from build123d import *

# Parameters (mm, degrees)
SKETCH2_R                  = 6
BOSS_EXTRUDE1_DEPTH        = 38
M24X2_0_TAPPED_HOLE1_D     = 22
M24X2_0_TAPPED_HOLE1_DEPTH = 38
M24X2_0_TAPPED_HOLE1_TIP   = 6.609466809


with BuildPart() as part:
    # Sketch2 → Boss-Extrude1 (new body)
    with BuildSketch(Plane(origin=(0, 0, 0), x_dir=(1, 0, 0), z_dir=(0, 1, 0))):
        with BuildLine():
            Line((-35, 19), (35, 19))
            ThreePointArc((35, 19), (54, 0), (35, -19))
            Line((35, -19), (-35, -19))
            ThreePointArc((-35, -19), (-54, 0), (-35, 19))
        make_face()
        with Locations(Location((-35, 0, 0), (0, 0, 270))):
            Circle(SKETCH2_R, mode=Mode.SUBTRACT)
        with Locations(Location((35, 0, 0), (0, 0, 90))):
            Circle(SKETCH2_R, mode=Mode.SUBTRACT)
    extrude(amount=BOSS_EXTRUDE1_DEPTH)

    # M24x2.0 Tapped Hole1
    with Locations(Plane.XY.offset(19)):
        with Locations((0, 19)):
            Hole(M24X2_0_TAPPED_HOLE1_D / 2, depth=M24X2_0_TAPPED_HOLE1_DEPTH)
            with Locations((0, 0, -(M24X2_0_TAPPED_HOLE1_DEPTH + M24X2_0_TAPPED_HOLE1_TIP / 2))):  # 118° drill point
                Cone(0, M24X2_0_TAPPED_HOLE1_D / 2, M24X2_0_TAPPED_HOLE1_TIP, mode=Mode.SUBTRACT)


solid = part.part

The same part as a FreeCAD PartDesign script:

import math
import FreeCAD as App
import Part
import Sketcher

doc = App.newDocument("Part")
params = doc.addObject("Spreadsheet::Sheet", "Params")
for row, (alias, value) in enumerate([
    ("sketch1_diameter", "12 mm"),
    ("sketch1_radius", "19 mm"),
    ("sketch1_width", "70 mm"),
    ("pad1_length", "38 mm"),
    ("sketch2_diameter", "22 mm"),
    ("hole_diameter", "22 mm"),
    ("hole_depth", "38 mm"),
], start=1):
    params.set(f"A{row}", alias)
    params.set(f"B{row}", "=" + value)
    params.setAlias(f"B{row}", alias)

body = doc.addObject("PartDesign::Body", "Body")

sketch1 = body.newObject("Sketcher::SketchObject", "Sketch")
sketch1.AttachmentSupport = (doc.getObject("XZ_Plane"), [""])
sketch1.MapMode = "FlatFace"
sketch1.addGeometry(Part.LineSegment(App.Vector(35, -19, 0), App.Vector(-35, -19, 0)), False)
sketch1.addGeometry(Part.ArcOfCircle(Part.Circle(App.Vector(-35, 0, 0), App.Vector(0, 0, 1), 19), math.radians(90), math.radians(270)), False)
sketch1.addGeometry(Part.LineSegment(App.Vector(-35, 19, 0), App.Vector(35, 19, 0)), False)
sketch1.addGeometry(Part.ArcOfCircle(Part.Circle(App.Vector(35, 0, 0), App.Vector(0, 0, 1), 19), math.radians(-90), math.radians(90)), False)
sketch1.addGeometry(Part.Circle(App.Vector(35, 0, 0), App.Vector(0, 0, 1), 6), False)
sketch1.addGeometry(Part.Circle(App.Vector(-35, 0, 0), App.Vector(0, 0, 1), 6), False)
sketch1.addConstraint(Sketcher.Constraint("Tangent", 0, 2, 1, 2))
sketch1.addConstraint(Sketcher.Constraint("Tangent", 1, 1, 2, 1))
sketch1.addConstraint(Sketcher.Constraint("Tangent", 2, 2, 3, 2))
sketch1.addConstraint(Sketcher.Constraint("Tangent", 3, 1, 0, 1))
sketch1.addConstraint(Sketcher.Constraint("Horizontal", 0))
sketch1.addConstraint(Sketcher.Constraint("Horizontal", 2))
sketch1.addConstraint(Sketcher.Constraint("Coincident", 4, 3, 3, 3))
sketch1.addConstraint(Sketcher.Constraint("Coincident", 5, 3, 1, 3))
sketch1.addConstraint(Sketcher.Constraint("Equal", 4, 5))
sketch1.addConstraint(Sketcher.Constraint("Symmetric", 1, 3, 3, 3, -1, 1))
sketch1.addConstraint(Sketcher.Constraint("Diameter", 4, 12.0))
sketch1.addConstraint(Sketcher.Constraint("Radius", 1, 19.0))
sketch1.addConstraint(Sketcher.Constraint("DistanceX", 0, 2, 0, 1, 70.0))
sketch1.setExpression("Constraints[10]", "Params.sketch1_diameter")
sketch1.setExpression("Constraints[11]", "Params.sketch1_radius")
sketch1.setExpression("Constraints[12]", "Params.sketch1_width")
pad1 = body.newObject("PartDesign::Pad", "Pad")
pad1.Profile = sketch1
pad1.setExpression("Length", "Params.pad1_length")
pad1.Reversed = True

sketch2 = body.newObject("Sketcher::SketchObject", "Sketch001")
sketch2.AttachmentSupport = (doc.getObject("XY_Plane"), [""])
sketch2.MapMode = "FlatFace"
sketch2.AttachmentOffset = App.Placement(App.Vector(0, 0, 19), App.Rotation())
sketch2.addGeometry(Part.Circle(App.Vector(0, 19, 0), App.Vector(0, 0, 1), 11), False)
sketch2.addConstraint(Sketcher.Constraint("PointOnObject", 0, 3, -2))
sketch2.addConstraint(Sketcher.Constraint("Diameter", 0, 22.0))
sketch2.addConstraint(Sketcher.Constraint("DistanceY", -1, 1, 0, 3, 19.0))
sketch2.setExpression("Constraints[1]", "Params.sketch2_diameter")
doc.recompute()
hole = body.newObject("PartDesign::Hole", "Hole")
hole.Profile = sketch2
hole.ThreadType = "None"
hole.setExpression("Diameter", "Params.hole_diameter")
hole.DepthType = "Dimension"
hole.setExpression("Depth", "Params.hole_depth")
hole.DrillPoint = "Angled"
hole.DrillPointAngle = 118

doc.recompute()
